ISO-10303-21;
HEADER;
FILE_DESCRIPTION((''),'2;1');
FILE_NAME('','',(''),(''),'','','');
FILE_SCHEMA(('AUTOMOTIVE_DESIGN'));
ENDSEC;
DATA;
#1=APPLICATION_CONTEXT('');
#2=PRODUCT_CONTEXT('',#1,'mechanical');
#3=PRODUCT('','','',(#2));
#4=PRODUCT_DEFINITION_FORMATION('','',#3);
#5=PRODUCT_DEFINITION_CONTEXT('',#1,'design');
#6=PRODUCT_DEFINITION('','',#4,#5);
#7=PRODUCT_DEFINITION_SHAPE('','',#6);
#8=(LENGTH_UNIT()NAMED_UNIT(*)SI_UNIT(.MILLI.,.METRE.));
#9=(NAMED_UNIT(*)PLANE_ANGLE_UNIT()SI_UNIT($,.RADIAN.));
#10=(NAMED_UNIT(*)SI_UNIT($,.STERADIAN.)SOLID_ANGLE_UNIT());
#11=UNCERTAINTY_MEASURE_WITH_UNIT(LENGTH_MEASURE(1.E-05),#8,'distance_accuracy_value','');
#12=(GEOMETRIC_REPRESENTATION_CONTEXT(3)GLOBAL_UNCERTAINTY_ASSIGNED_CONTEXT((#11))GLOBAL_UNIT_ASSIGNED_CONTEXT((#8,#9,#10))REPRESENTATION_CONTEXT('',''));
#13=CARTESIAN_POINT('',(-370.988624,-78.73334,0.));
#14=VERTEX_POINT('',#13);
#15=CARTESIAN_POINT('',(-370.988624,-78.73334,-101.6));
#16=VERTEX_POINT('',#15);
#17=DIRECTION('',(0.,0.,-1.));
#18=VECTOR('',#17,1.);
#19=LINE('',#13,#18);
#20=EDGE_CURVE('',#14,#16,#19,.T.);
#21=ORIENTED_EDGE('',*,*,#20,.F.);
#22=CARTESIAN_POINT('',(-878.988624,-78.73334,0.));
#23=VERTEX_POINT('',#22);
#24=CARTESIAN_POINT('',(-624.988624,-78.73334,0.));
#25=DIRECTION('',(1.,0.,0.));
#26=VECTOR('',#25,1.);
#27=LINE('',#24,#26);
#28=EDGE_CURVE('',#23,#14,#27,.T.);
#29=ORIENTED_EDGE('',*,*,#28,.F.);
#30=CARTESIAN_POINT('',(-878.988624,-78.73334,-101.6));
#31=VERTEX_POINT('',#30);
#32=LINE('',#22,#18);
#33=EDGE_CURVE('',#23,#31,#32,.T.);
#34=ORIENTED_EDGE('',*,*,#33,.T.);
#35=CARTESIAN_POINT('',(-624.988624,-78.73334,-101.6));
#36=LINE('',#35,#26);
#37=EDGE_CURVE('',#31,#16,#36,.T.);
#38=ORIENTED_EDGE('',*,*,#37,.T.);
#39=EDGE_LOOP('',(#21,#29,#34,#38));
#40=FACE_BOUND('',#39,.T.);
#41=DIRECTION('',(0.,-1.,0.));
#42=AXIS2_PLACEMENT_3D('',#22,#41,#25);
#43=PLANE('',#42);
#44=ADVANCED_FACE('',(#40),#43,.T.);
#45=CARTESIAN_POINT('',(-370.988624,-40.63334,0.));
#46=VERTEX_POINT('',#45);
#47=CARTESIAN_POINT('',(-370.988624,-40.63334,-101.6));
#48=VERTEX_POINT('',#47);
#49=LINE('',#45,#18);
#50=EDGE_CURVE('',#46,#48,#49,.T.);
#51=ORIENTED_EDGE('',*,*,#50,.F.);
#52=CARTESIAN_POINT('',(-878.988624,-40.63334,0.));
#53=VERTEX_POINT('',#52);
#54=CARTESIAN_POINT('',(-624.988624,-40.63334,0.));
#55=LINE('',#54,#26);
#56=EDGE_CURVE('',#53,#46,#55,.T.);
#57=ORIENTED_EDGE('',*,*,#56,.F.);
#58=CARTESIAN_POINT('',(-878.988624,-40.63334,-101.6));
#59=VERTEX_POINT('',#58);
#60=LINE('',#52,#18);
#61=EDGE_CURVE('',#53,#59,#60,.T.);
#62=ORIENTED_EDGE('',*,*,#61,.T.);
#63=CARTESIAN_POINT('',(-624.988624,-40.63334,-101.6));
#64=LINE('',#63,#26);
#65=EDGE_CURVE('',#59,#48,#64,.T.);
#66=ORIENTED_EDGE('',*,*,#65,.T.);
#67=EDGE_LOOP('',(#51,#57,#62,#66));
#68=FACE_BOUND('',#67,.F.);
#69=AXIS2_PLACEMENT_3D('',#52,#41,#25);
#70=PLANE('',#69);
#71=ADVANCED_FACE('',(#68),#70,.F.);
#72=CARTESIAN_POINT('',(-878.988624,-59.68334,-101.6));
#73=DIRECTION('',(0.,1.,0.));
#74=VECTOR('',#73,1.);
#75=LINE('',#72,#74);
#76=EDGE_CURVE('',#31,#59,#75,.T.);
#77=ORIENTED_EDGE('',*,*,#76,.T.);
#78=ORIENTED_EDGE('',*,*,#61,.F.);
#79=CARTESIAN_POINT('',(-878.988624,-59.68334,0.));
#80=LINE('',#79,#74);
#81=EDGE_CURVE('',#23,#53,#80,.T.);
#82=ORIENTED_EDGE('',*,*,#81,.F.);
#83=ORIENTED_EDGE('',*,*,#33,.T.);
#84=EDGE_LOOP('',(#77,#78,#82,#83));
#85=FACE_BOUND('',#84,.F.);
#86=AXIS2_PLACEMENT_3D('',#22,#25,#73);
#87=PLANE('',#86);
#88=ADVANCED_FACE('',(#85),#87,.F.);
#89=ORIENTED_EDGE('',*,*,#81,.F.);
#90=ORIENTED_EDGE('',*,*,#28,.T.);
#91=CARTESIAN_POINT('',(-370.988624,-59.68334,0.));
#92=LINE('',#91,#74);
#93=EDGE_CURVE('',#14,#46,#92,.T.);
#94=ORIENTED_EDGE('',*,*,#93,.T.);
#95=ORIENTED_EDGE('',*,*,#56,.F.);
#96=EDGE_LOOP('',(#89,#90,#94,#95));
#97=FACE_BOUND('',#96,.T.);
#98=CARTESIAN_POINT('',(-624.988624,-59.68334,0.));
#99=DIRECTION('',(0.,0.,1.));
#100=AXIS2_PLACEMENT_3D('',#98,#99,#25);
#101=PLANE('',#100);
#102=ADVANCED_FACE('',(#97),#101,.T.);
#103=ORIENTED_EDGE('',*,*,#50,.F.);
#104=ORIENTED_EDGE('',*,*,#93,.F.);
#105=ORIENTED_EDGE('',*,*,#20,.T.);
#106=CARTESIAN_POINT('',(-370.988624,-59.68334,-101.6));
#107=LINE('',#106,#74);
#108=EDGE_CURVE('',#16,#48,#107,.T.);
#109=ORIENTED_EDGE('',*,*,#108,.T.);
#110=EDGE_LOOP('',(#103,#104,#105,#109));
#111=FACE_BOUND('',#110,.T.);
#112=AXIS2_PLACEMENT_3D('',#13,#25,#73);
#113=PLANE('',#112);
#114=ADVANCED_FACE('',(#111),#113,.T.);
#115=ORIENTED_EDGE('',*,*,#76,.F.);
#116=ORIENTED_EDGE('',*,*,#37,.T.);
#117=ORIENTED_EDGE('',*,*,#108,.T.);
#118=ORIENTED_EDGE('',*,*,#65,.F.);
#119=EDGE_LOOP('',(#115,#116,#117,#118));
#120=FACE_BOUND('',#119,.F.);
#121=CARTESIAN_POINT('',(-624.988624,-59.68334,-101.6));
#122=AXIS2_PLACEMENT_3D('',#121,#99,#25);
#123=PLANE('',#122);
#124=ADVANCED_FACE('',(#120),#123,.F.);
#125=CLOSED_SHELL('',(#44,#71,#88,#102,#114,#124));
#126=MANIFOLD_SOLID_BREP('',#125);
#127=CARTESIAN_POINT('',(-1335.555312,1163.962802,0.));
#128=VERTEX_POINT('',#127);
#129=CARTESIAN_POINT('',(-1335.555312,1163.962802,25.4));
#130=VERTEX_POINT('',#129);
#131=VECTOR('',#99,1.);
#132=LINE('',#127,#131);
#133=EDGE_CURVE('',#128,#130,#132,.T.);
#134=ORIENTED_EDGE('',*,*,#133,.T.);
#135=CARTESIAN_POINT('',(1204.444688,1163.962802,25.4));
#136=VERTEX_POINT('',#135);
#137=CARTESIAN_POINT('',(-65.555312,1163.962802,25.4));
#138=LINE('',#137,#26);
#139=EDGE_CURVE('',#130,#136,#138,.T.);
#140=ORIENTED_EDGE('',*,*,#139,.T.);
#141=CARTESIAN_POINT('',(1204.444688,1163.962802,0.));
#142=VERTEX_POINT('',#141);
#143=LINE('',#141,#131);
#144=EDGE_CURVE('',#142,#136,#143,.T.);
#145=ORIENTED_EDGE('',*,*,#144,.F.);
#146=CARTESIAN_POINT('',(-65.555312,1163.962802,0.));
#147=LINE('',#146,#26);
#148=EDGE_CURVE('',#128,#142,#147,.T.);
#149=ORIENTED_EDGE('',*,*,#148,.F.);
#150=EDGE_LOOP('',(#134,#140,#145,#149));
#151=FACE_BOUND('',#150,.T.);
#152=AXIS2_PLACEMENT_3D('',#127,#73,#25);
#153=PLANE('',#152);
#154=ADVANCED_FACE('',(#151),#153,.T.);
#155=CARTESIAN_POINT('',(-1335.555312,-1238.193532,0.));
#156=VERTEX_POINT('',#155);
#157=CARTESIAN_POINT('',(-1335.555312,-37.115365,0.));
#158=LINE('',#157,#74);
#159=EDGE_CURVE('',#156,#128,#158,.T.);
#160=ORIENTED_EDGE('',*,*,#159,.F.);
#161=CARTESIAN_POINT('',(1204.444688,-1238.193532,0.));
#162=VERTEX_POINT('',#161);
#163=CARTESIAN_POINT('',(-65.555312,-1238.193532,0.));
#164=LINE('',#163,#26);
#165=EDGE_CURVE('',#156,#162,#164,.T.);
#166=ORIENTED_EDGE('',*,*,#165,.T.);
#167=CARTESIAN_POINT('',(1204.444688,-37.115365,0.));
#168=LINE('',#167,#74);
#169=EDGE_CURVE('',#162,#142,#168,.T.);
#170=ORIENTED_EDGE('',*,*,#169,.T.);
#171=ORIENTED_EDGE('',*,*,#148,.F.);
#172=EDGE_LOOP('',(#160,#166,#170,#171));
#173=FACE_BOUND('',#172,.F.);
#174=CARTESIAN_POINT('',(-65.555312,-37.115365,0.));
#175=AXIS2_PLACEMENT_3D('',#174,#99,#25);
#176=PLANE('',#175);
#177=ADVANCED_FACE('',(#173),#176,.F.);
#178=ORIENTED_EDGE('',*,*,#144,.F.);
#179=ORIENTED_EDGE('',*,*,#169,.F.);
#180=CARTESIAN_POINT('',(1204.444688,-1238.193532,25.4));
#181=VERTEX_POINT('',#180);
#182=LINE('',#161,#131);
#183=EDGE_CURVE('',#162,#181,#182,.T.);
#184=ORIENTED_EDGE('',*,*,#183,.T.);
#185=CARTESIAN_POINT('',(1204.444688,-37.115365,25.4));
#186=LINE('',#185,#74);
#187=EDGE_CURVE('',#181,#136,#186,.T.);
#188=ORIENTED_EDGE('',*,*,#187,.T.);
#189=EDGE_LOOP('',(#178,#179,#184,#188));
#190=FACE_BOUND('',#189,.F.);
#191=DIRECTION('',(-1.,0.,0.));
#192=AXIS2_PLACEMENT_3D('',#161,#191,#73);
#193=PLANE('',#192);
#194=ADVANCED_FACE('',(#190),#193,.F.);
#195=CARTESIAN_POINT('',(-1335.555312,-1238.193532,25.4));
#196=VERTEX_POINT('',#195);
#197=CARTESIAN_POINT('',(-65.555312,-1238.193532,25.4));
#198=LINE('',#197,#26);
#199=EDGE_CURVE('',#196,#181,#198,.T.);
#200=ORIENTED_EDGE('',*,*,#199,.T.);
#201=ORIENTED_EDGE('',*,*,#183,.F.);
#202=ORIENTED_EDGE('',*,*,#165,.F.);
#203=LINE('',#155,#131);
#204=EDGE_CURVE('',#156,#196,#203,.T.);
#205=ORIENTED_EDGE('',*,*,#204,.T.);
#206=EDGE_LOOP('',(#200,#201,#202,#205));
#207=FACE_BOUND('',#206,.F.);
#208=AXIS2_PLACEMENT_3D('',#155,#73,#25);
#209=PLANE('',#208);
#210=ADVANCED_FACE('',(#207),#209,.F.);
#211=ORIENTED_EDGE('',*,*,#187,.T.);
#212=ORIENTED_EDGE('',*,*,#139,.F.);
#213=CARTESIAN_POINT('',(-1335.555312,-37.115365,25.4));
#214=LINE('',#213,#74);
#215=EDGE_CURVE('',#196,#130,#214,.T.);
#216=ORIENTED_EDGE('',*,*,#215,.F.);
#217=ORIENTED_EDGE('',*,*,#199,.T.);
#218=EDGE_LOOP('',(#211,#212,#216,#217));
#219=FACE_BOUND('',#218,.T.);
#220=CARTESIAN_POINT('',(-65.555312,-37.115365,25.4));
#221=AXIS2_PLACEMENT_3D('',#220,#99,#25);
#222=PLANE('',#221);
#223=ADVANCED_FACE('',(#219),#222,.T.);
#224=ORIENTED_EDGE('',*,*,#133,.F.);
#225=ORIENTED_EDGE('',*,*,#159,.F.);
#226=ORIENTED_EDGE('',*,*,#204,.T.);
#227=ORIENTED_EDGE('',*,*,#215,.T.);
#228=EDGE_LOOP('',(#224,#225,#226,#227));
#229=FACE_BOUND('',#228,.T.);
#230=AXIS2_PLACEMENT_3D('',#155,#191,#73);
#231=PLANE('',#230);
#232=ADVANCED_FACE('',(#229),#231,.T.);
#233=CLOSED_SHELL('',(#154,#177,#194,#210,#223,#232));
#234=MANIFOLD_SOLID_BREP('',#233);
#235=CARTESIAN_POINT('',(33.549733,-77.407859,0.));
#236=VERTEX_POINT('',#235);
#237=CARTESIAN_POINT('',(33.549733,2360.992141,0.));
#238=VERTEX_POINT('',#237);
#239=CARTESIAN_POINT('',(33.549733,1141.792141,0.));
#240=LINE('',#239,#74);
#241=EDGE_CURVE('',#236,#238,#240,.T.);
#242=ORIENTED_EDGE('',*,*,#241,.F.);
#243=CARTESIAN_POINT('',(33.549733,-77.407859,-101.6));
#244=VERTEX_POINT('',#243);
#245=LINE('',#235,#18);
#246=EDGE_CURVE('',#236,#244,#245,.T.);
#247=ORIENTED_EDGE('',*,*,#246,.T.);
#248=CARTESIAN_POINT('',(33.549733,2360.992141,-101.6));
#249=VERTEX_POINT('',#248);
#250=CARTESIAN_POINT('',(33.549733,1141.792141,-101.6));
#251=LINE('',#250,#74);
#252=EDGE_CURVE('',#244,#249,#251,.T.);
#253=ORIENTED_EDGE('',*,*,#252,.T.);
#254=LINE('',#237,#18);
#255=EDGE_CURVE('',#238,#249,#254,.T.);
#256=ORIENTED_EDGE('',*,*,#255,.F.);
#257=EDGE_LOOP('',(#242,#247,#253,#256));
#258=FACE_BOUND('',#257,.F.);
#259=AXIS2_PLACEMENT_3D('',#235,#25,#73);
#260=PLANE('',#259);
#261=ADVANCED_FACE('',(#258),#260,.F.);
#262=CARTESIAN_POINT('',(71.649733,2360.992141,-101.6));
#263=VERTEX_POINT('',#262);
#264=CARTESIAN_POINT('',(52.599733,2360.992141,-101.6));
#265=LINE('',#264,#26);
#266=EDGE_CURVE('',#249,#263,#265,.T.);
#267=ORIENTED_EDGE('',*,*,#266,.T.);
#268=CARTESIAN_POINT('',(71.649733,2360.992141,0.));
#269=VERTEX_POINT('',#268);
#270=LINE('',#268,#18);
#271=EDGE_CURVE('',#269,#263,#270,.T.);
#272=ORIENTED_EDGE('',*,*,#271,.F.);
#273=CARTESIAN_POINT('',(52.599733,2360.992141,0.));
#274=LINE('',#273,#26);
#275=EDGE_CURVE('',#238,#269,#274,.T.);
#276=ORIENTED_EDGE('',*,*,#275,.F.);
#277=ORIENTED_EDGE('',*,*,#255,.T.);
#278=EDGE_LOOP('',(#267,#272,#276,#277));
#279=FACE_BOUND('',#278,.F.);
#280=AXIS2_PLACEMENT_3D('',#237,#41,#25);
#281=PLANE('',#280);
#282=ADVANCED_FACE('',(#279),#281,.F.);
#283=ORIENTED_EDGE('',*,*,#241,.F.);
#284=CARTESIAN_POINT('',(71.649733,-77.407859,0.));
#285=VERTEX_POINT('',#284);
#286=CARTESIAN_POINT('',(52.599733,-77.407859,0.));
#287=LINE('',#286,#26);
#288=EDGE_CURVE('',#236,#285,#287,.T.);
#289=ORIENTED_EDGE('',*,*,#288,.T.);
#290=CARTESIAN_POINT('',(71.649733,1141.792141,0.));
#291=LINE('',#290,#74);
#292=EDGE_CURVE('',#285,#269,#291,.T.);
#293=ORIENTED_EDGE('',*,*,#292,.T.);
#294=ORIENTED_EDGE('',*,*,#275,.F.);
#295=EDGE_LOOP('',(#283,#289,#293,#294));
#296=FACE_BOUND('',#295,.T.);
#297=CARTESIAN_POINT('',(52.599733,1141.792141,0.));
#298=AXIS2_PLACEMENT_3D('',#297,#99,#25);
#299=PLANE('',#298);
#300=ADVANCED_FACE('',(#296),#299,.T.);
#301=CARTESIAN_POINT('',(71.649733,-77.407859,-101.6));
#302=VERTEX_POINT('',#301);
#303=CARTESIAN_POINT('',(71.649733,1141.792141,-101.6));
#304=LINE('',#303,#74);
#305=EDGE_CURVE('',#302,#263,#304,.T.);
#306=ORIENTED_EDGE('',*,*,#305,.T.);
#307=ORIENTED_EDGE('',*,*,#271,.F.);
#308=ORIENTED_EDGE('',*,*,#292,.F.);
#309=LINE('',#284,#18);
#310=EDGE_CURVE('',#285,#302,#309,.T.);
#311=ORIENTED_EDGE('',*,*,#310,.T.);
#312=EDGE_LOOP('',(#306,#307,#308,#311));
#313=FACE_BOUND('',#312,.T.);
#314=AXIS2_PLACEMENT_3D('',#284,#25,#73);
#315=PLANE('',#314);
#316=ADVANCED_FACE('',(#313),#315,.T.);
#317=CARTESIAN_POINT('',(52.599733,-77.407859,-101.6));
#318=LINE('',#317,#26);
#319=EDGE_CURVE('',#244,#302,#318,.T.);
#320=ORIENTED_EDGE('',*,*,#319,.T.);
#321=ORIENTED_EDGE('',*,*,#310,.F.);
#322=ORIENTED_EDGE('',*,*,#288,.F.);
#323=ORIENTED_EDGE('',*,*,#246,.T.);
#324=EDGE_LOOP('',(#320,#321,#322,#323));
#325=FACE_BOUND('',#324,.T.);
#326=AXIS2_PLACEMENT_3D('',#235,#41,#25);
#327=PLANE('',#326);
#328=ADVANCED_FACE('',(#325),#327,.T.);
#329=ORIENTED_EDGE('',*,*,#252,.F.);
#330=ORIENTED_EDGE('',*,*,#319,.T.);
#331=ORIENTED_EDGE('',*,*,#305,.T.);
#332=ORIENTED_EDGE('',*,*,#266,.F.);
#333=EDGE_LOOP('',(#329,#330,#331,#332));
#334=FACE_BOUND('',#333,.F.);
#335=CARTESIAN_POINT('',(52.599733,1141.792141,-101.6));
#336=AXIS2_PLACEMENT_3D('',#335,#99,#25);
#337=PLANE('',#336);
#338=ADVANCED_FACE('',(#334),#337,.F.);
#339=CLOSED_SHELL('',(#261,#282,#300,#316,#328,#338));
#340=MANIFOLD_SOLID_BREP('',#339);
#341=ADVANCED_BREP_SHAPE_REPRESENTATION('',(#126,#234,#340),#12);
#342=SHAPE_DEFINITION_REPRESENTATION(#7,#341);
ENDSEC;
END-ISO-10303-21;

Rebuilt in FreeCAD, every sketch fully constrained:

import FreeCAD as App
import Part
import Sketcher
from FreeCAD import Vector
Q = App.Units.Quantity

doc = App.newDocument("Part")
body = doc.addObject("PartDesign::Body", "Body")

# Sketch on XY plane
sketch1 = body.newObject("Sketcher::SketchObject", "Sketch")
sketch1.AttachmentSupport = (doc.getObject("XY_Plane"), [""])
sketch1.MapMode = "FlatFace"
sketch1.addGeometry(Part.LineSegment(Vector(34, 2361, 0), Vector(34, -77, 0)), False)
sketch1.addGeometry(Part.LineSegment(Vector(34, -77, 0), Vector(72, -77, 0)), False)
sketch1.addGeometry(Part.LineSegment(Vector(72, -77, 0), Vector(72, 2361, 0)), False)
sketch1.addGeometry(Part.LineSegment(Vector(72, 2361, 0), Vector(34, 2361, 0)), False)
sketch1.addConstraint(Sketcher.Constraint("Coincident", 0, 2, 1, 1))
sketch1.addConstraint(Sketcher.Constraint("Coincident", 1, 2, 2, 1))
sketch1.addConstraint(Sketcher.Constraint("Coincident", 2, 2, 3, 1))
sketch1.addConstraint(Sketcher.Constraint("Coincident", 3, 2, 0, 1))
sketch1.addConstraint(Sketcher.Constraint("Vertical", 0))
sketch1.addConstraint(Sketcher.Constraint("Horizontal", 1))
sketch1.addConstraint(Sketcher.Constraint("Vertical", 2))
sketch1.addConstraint(Sketcher.Constraint("Horizontal", 3))
sketch1.addConstraint(Sketcher.Constraint("DistanceY", 0, 2, 0, 1, Q("96 in")))
sketch1.addConstraint(Sketcher.Constraint("DistanceX", 1, 1, 1, 2, Q("1.5 in")))
sketch1.addConstraint(Sketcher.Constraint("DistanceY", 0, 2, -1, 1, 77.407859))
sketch1.addConstraint(Sketcher.Constraint("DistanceX", -1, 1, 0, 2, 33.549733))
pad1 = body.newObject("PartDesign::Pad", "Pad")
pad1.Profile = sketch1
pad1.Length = Q("4 in")
pad1.Reversed = True
body2 = doc.addObject("PartDesign::Body", "Body001")

# Sketch on XY plane
sketch2 = body2.newObject("Sketcher::SketchObject", "Sketch001")
sketch2.AttachmentSupport = (doc.getObject("XY_Plane001"), [""])
sketch2.MapMode = "FlatFace"
sketch2.addGeometry(Part.LineSegment(Vector(-879, -41, 0), Vector(-879, -79, 0)), False)
sketch2.addGeometry(Part.LineSegment(Vector(-879, -79, 0), Vector(-371, -79, 0)), False)
sketch2.addGeometry(Part.LineSegment(Vector(-371, -79, 0), Vector(-371, -41, 0)), False)
sketch2.addGeometry(Part.LineSegment(Vector(-371, -41, 0), Vector(-879, -41, 0)), False)
sketch2.addConstraint(Sketcher.Constraint("Coincident", 0, 2, 1, 1))
sketch2.addConstraint(Sketcher.Constraint("Coincident", 1, 2, 2, 1))
sketch2.addConstraint(Sketcher.Constraint("Coincident", 2, 2, 3, 1))
sketch2.addConstraint(Sketcher.Constraint("Coincident", 3, 2, 0, 1))
sketch2.addConstraint(Sketcher.Constraint("Vertical", 0))
sketch2.addConstraint(Sketcher.Constraint("Horizontal", 1))
sketch2.addConstraint(Sketcher.Constraint("Vertical", 2))
sketch2.addConstraint(Sketcher.Constraint("Horizontal", 3))
sketch2.addConstraint(Sketcher.Constraint("DistanceX", 1, 1, 1, 2, Q("20 in")))
sketch2.addConstraint(Sketcher.Constraint("DistanceY", 0, 2, 0, 1, Q("1.5 in")))
sketch2.addConstraint(Sketcher.Constraint("DistanceY", 0, 2, -1, 1, 78.73334))
sketch2.addConstraint(Sketcher.Constraint("DistanceX", 0, 2, -1, 1, 878.988624))
pad2 = body2.newObject("PartDesign::Pad", "Pad001")
pad2.Profile = sketch2
pad2.Length = Q("4 in")
pad2.Reversed = True
body3 = doc.addObject("PartDesign::Body", "Body002")

# Sketch on XY plane
sketch3 = body3.newObject("Sketcher::SketchObject", "Sketch002")
sketch3.AttachmentSupport = (doc.getObject("XY_Plane002"), [""])
sketch3.MapMode = "FlatFace"
sketch3.addGeometry(Part.LineSegment(Vector(-1336, 1164, 0), Vector(-1336, -1238, 0)), False)
sketch3.addGeometry(Part.LineSegment(Vector(-1336, -1238, 0), Vector(1204, -1238, 0)), False)
sketch3.addGeometry(Part.LineSegment(Vector(1204, -1238, 0), Vector(1204, 1164, 0)), False)
sketch3.addGeometry(Part.LineSegment(Vector(1204, 1164, 0), Vector(-1336, 1164, 0)), False)
sketch3.addConstraint(Sketcher.Constraint("Coincident", 0, 2, 1, 1))
sketch3.addConstraint(Sketcher.Constraint("Coincident", 1, 2, 2, 1))
sketch3.addConstraint(Sketcher.Constraint("Coincident", 2, 2, 3, 1))
sketch3.addConstraint(Sketcher.Constraint("Coincident", 3, 2, 0, 1))
sketch3.addConstraint(Sketcher.Constraint("Vertical", 0))
sketch3.addConstraint(Sketcher.Constraint("Horizontal", 1))
sketch3.addConstraint(Sketcher.Constraint("Vertical", 2))
sketch3.addConstraint(Sketcher.Constraint("Horizontal", 3))
sketch3.addConstraint(Sketcher.Constraint("DistanceX", 1, 1, 1, 2, Q("100 in")))
sketch3.addConstraint(Sketcher.Constraint("DistanceY", -1, 1, 2, 2, 1163.962802))
sketch3.addConstraint(Sketcher.Constraint("DistanceY", 0, 2, 0, 1, 2402.156334))
sketch3.addConstraint(Sketcher.Constraint("DistanceX", 0, 2, -1, 1, 1335.555312))
pad3 = body3.newObject("PartDesign::Pad", "Pad002")
pad3.Profile = sketch3
pad3.Length = Q("1 in")

doc.recompute()
